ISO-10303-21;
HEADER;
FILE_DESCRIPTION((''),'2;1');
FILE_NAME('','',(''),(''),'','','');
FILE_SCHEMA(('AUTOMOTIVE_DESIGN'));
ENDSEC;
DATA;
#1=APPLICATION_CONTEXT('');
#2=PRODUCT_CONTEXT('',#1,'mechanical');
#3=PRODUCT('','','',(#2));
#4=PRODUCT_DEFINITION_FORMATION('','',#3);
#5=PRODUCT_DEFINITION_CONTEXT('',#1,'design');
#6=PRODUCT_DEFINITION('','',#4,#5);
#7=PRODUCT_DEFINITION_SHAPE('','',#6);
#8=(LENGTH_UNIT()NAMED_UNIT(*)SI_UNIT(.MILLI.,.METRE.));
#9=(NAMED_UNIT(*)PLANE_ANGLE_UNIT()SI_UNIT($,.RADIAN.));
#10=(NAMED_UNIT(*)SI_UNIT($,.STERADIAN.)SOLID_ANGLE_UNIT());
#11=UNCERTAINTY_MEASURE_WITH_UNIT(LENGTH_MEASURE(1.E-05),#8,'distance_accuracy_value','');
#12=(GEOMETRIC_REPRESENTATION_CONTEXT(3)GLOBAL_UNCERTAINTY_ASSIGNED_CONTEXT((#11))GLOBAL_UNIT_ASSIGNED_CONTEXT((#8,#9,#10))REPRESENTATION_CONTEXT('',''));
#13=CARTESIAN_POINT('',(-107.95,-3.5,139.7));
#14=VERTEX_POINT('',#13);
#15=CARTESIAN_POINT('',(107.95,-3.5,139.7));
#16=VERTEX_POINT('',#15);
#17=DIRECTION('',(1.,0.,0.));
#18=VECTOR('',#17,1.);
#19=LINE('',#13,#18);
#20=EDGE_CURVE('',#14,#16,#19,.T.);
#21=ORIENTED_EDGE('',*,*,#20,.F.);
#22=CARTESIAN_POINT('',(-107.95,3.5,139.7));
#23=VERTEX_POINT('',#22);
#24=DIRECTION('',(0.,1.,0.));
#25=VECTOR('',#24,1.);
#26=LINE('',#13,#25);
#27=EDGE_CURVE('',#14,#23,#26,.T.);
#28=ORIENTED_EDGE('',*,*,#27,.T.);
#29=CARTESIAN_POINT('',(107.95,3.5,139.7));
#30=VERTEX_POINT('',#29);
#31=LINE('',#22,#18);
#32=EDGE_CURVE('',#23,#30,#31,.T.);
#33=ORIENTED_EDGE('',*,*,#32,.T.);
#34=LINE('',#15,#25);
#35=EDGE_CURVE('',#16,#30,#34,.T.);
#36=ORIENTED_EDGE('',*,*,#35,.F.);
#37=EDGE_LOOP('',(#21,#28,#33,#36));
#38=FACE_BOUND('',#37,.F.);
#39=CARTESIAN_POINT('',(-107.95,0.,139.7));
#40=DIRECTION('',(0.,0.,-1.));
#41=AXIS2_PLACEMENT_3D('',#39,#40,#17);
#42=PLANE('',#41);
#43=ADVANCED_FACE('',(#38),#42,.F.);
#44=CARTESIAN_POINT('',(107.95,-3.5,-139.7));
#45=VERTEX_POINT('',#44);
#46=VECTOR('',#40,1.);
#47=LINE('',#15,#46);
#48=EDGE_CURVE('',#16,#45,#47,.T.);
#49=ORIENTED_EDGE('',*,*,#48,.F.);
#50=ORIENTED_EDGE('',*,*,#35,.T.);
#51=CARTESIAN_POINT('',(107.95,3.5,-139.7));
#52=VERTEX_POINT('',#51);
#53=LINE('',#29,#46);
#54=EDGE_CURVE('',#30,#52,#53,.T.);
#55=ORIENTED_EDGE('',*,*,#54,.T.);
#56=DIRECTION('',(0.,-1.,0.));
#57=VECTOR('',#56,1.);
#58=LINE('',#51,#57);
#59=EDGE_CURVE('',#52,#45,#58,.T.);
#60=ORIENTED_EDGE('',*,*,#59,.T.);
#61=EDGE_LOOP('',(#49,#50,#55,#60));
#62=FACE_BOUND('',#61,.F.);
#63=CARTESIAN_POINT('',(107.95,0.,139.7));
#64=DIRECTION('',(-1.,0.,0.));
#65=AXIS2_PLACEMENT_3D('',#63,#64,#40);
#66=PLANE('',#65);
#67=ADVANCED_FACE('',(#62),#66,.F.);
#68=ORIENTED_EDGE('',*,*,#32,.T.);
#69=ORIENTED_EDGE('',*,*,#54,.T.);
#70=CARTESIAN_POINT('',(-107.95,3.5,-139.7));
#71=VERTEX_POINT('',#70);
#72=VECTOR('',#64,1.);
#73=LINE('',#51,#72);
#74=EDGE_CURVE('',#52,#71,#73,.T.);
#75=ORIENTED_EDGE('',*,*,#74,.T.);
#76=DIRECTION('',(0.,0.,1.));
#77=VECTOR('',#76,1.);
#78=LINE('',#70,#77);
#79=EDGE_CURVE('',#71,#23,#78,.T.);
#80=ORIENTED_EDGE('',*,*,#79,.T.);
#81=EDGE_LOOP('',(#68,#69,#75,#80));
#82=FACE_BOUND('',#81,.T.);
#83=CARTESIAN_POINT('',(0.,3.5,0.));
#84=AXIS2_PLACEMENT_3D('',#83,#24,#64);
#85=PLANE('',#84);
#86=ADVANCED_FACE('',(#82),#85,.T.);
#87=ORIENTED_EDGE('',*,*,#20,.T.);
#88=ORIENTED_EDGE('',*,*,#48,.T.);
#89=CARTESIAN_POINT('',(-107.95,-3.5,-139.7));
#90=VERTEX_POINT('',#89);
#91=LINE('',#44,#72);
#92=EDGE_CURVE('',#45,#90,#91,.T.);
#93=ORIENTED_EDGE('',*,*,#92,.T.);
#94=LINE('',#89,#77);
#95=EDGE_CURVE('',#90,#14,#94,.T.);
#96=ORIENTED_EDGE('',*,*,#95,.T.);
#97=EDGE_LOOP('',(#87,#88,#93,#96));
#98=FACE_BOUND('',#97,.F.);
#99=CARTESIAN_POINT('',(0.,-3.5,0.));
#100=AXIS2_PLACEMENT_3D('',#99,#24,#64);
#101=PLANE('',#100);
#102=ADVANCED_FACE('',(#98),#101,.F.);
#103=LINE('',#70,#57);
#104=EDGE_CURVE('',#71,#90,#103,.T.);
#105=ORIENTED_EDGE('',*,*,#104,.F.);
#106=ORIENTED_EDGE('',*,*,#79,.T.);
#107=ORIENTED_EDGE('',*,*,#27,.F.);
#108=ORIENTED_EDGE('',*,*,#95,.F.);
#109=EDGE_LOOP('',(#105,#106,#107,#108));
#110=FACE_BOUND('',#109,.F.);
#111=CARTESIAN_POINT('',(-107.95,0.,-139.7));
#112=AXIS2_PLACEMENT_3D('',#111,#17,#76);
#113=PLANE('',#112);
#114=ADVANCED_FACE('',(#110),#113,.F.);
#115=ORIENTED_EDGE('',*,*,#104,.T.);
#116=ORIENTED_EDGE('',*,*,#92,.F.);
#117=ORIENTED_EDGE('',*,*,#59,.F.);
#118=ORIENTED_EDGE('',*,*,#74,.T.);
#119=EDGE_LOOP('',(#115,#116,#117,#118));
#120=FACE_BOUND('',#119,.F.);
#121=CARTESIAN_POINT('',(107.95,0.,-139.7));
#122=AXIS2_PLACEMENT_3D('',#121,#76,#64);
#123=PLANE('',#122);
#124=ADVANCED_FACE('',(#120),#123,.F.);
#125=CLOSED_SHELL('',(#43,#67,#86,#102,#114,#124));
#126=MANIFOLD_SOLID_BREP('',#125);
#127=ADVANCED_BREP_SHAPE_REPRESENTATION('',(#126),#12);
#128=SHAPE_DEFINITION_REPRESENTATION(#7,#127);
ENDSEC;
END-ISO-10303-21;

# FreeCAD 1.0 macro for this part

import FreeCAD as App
import Part
import Sketcher

V = App.Vector
Q = App.Units.Quantity


def add_polygon(sketch, points):
    """Adds a closed chain of lines whose ends are joined by coincident constraints."""
    first, n = sketch.GeometryCount, len(points)
    for a, b in zip(points, points[1:] + points[:1]):
        sketch.addGeometry(Part.LineSegment(App.Vector(*a, 0), App.Vector(*b, 0)), False)
    for i in range(n):
        sketch.addConstraint(Sketcher.Constraint("Coincident", first + i, 2, first + (i + 1) % n, 1))

doc = App.newDocument("Part")
body = doc.addObject("PartDesign::Body", "Body")

# Sketch on XZ plane
sketch1 = body.newObject("Sketcher::SketchObject", "Sketch")
sketch1.AttachmentSupport = (doc.getObject("XZ_Plane"), [""])
sketch1.MapMode = "FlatFace"
add_polygon(sketch1, [(-108, -140), (-108, 140), (108, 140), (108, -140)])  # lines 0-3
sketch1.addConstraint([
    Sketcher.Constraint("Vertical", 0),
    Sketcher.Constraint("Horizontal", 1),
    Sketcher.Constraint("Vertical", 2),
    Sketcher.Constraint("Horizontal", 3),
    Sketcher.Constraint("Symmetric", 0, 2, 2, 2, -1, 1),
    Sketcher.Constraint("DistanceY", 0, 1, 0, 2, Q("11 in")),
    Sketcher.Constraint("DistanceX", 1, 1, 1, 2, Q("8.5 in")),
])
pad1 = body.newObject("PartDesign::Pad", "Pad")
pad1.Profile = sketch1
pad1.Length = Q("0.2755906 in")
pad1.Midplane = True

doc.recompute()
